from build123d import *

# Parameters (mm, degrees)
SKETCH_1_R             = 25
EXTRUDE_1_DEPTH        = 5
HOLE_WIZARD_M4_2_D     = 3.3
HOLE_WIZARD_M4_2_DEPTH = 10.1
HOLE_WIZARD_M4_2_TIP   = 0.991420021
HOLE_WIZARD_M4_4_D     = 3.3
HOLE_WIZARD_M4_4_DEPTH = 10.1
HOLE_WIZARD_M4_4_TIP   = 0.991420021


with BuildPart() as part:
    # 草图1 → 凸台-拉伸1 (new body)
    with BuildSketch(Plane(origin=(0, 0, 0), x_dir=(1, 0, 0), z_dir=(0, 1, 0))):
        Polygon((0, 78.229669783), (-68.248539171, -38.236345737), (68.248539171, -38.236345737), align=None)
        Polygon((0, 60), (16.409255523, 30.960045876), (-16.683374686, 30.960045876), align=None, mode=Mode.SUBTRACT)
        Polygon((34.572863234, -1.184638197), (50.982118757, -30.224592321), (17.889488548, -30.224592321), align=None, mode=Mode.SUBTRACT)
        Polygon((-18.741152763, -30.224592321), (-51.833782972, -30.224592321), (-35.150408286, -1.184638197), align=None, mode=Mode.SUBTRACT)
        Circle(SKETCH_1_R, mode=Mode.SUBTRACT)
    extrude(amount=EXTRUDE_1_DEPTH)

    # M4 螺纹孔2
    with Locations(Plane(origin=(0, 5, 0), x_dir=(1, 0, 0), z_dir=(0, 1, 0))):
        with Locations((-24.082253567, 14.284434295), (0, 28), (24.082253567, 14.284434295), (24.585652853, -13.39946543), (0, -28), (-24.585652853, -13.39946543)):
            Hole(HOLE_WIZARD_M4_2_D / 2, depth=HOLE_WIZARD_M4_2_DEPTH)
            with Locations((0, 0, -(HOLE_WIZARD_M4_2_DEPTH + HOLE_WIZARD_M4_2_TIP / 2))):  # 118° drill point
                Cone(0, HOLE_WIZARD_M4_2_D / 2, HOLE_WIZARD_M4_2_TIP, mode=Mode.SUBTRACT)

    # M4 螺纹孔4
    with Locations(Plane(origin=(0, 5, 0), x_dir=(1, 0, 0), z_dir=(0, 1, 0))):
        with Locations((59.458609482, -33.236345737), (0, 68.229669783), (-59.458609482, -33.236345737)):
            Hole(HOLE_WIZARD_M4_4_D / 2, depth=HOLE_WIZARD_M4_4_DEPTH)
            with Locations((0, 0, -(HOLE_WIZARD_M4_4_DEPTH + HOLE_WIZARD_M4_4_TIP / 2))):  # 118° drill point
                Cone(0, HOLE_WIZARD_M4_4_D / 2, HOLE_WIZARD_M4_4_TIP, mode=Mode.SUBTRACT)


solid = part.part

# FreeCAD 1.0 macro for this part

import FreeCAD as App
import Part
import Sketcher

doc = App.newDocument("Part")
body = doc.addObject("PartDesign::Body", "Body")

# Sketch on XZ plane
sketch1 = body.newObject("Sketcher::SketchObject", "Sketch")
sketch1.AttachmentSupport = (doc.getObject("XZ_Plane"), [""])
sketch1.MapMode = "FlatFace"
sketch1.addGeometry([
    Part.LineSegment(App.Vector(0, -78.22967, 0), App.Vector(-68.248539, 38.236346, 0)),  # 0
    Part.LineSegment(App.Vector(-68.248539, 38.236346, 0), App.Vector(68.248539, 38.236346, 0)),  # 1
    Part.LineSegment(App.Vector(68.248539, 38.236346, 0), App.Vector(0, -78.22967, 0)),  # 2
    Part.LineSegment(App.Vector(-35.150408, 1.184638, 0), App.Vector(-18.741153, 30.224592, 0)),  # 3
    Part.LineSegment(App.Vector(-18.741153, 30.224592, 0), App.Vector(-51.833783, 30.224592, 0)),  # 4
    Part.LineSegment(App.Vector(-51.833783, 30.224592, 0), App.Vector(-35.150408, 1.184638, 0)),  # 5
    Part.LineSegment(App.Vector(17.889489, 30.224592, 0), App.Vector(34.572863, 1.184638, 0)),  # 6
    Part.LineSegment(App.Vector(34.572863, 1.184638, 0), App.Vector(50.982119, 30.224592, 0)),  # 7
    Part.LineSegment(App.Vector(50.982119, 30.224592, 0), App.Vector(17.889489, 30.224592, 0)),  # 8
    Part.Circle(App.Vector(0, 0, 0), App.Vector(0, 0, 1), 25),  # 9
    Part.LineSegment(App.Vector(-16.683375, -30.960046, 0), App.Vector(0, -60, 0)),  # 10
    Part.LineSegment(App.Vector(0, -60, 0), App.Vector(16.409256, -30.960046, 0)),  # 11
    Part.LineSegment(App.Vector(16.409256, -30.960046, 0), App.Vector(-16.683375, -30.960046, 0)),  # 12
], False)
sketch1.addConstraint([
    Sketcher.Constraint("Coincident", 0, 2, 1, 1),
    Sketcher.Constraint("Coincident", 1, 2, 2, 1),
    Sketcher.Constraint("Coincident", 2, 2, 0, 1),
    Sketcher.Constraint("Coincident", 3, 2, 4, 1),
    Sketcher.Constraint("Coincident", 4, 2, 5, 1),
    Sketcher.Constraint("Coincident", 5, 2, 3, 1),
    Sketcher.Constraint("Coincident", 6, 2, 7, 1),
    Sketcher.Constraint("Coincident", 7, 2, 8, 1),
    Sketcher.Constraint("Coincident", 8, 2, 6, 1),
    Sketcher.Constraint("Coincident", 10, 2, 11, 1),
    Sketcher.Constraint("Coincident", 11, 2, 12, 1),
    Sketcher.Constraint("Coincident", 12, 2, 10, 1),
    Sketcher.Constraint("Horizontal", 1),
    Sketcher.Constraint("Horizontal", 4),
    Sketcher.Constraint("Horizontal", 8),
    Sketcher.Constraint("Horizontal", 12),
    Sketcher.Constraint("Coincident", 9, 3, -1, 1),
    Sketcher.Constraint("PointOnObject", 2, 2, -2),
    Sketcher.Constraint("PointOnObject", 10, 2, -2),
    Sketcher.Constraint("Parallel", 5, 6),
    Sketcher.Constraint("Parallel", 3, 7),
    Sketcher.Constraint("Parallel", 6, 10),
    Sketcher.Constraint("Parallel", 7, 11),
    Sketcher.Constraint("Horizontal", 5, 2, 6, 2),
    Sketcher.Constraint("Horizontal", 4, 2, 7, 2),
    Sketcher.Constraint("Equal", 8, 12),
    Sketcher.Constraint("Equal", 0, 2),
    Sketcher.Constraint("Diameter", 9, 50.0),
    Sketcher.Constraint("DistanceY", 10, 2, -1, 1, 60.0),
    Sketcher.Constraint("Distance", 3, 33.355398),
    Sketcher.Constraint("DistanceX", 1, 1, 1, 2, 136.497078),
    Sketcher.Constraint("DistanceX", 4, 2, 4, 1, 33.09263),
    Sketcher.Constraint("DistanceY", 2, 2, -1, 1, 78.22967),
    Sketcher.Constraint("DistanceX", 5, 2, -1, 1, 35.150408),
    Sketcher.Constraint("DistanceY", -1, 1, 5, 2, 1.184638),
    Sketcher.Constraint("DistanceX", -1, 1, 7, 2, 50.982119),
    Sketcher.Constraint("DistanceX", 3, 2, 1, 2, 86.989692),
    Sketcher.Constraint("Distance", 0, 134.989614),
])
pad1 = body.newObject("PartDesign::Pad", "Pad")
pad1.Profile = sketch1
pad1.Length = 5
pad1.Reversed = True

# Sketch on XZ plane
sketch2 = body.newObject("Sketcher::SketchObject", "Sketch001")
sketch2.AttachmentSupport = (doc.getObject("XZ_Plane"), [""])
sketch2.MapMode = "FlatFace"
sketch2.AttachmentOffset = App.Placement(App.Vector(0, 0, -5), App.Rotation())
sketch2.addGeometry([
    Part.Circle(App.Vector(-24.082254, -14.284434, 0), App.Vector(0, 0, 1), 1.65),  # 0
    Part.Circle(App.Vector(0, -28, 0), App.Vector(0, 0, 1), 1.65),  # 1
    Part.Circle(App.Vector(24.082254, -14.284434, 0), App.Vector(0, 0, 1), 1.65),  # 2
    Part.Circle(App.Vector(24.585653, 13.399465, 0), App.Vector(0, 0, 1), 1.65),  # 3
    Part.Circle(App.Vector(0, 28, 0), App.Vector(0, 0, 1), 1.65),  # 4
    Part.Circle(App.Vector(-24.585653, 13.399465, 0), App.Vector(0, 0, 1), 1.65),  # 5
], False)
sketch2.addConstraint([
    Sketcher.Constraint("Equal", 0, 1),
    Sketcher.Constraint("Equal", 1, 2),
    Sketcher.Constraint("Equal", 2, 3),
    Sketcher.Constraint("Equal", 3, 4),
    Sketcher.Constraint("Equal", 4, 5),
    Sketcher.Constraint("Symmetric", 1, 3, 4, 3, -1, 1),
    Sketcher.Constraint("Symmetric", 0, 3, 2, 3, -2),
    Sketcher.Constraint("Symmetric", 3, 3, 5, 3, -2),
    Sketcher.Constraint("PointOnObject", 1, 3, -2),
    Sketcher.Constraint("Diameter", 0, 3.3),
    Sketcher.Constraint("DistanceY", 1, 3, -1, 1, 28.0),
    Sketcher.Constraint("DistanceX", 2, 3, 3, 3, 0.503399),
    Sketcher.Constraint("DistanceY", 2, 3, 3, 3, 27.6839),
    Sketcher.Constraint("DistanceX", 0, 3, -1, 1, 24.082254),
    Sketcher.Constraint("DistanceY", 0, 3, -1, 1, 14.284434),
])
doc.recompute()
hole = body.newObject("PartDesign::Hole", "Hole")
hole.Profile = sketch2
hole.ThreadType = "None"
hole.Diameter = 3.3
hole.DepthType = "Dimension"
hole.Depth = 10.1
hole.DrillPoint = "Angled"
hole.DrillPointAngle = 118
hole.Reversed = True

# Sketch on XZ plane
sketch3 = body.newObject("Sketcher::SketchObject", "Sketch002")
sketch3.AttachmentSupport = (doc.getObject("XZ_Plane"), [""])
sketch3.MapMode = "FlatFace"
sketch3.AttachmentOffset = App.Placement(App.Vector(0, 0, -5), App.Rotation())
sketch3.addGeometry([
    Part.Circle(App.Vector(59.458609, 33.236346, 0), App.Vector(0, 0, 1), 1.65),
    Part.Circle(App.Vector(0, -68.22967, 0), App.Vector(0, 0, 1), 1.65),
    Part.Circle(App.Vector(-59.458609, 33.236346, 0), App.Vector(0, 0, 1), 1.65),
], False)
sketch3.addConstraint([
    Sketcher.Constraint("Equal", 0, 1),
    Sketcher.Constraint("Equal", 1, 2),
    Sketcher.Constraint("Symmetric", 0, 3, 2, 3, -2),
    Sketcher.Constraint("PointOnObject", 1, 3, -2),
    Sketcher.Constraint("Diameter", 0, 3.3),
    Sketcher.Constraint("DistanceX", -1, 1, 0, 3, 59.458609),
    Sketcher.Constraint("DistanceY", 1, 3, -1, 1, 68.22967),
    Sketcher.Constraint("DistanceY", -1, 1, 0, 3, 33.236346),
])
doc.recompute()
hole2 = body.newObject("PartDesign::Hole", "Hole001")
hole2.Profile = sketch3
hole2.ThreadType = "None"
hole2.Diameter = 3.3
hole2.DepthType = "Dimension"
hole2.Depth = 10.1
hole2.DrillPoint = "Angled"
hole2.DrillPointAngle = 118
hole2.Reversed = True

doc.recompute()
